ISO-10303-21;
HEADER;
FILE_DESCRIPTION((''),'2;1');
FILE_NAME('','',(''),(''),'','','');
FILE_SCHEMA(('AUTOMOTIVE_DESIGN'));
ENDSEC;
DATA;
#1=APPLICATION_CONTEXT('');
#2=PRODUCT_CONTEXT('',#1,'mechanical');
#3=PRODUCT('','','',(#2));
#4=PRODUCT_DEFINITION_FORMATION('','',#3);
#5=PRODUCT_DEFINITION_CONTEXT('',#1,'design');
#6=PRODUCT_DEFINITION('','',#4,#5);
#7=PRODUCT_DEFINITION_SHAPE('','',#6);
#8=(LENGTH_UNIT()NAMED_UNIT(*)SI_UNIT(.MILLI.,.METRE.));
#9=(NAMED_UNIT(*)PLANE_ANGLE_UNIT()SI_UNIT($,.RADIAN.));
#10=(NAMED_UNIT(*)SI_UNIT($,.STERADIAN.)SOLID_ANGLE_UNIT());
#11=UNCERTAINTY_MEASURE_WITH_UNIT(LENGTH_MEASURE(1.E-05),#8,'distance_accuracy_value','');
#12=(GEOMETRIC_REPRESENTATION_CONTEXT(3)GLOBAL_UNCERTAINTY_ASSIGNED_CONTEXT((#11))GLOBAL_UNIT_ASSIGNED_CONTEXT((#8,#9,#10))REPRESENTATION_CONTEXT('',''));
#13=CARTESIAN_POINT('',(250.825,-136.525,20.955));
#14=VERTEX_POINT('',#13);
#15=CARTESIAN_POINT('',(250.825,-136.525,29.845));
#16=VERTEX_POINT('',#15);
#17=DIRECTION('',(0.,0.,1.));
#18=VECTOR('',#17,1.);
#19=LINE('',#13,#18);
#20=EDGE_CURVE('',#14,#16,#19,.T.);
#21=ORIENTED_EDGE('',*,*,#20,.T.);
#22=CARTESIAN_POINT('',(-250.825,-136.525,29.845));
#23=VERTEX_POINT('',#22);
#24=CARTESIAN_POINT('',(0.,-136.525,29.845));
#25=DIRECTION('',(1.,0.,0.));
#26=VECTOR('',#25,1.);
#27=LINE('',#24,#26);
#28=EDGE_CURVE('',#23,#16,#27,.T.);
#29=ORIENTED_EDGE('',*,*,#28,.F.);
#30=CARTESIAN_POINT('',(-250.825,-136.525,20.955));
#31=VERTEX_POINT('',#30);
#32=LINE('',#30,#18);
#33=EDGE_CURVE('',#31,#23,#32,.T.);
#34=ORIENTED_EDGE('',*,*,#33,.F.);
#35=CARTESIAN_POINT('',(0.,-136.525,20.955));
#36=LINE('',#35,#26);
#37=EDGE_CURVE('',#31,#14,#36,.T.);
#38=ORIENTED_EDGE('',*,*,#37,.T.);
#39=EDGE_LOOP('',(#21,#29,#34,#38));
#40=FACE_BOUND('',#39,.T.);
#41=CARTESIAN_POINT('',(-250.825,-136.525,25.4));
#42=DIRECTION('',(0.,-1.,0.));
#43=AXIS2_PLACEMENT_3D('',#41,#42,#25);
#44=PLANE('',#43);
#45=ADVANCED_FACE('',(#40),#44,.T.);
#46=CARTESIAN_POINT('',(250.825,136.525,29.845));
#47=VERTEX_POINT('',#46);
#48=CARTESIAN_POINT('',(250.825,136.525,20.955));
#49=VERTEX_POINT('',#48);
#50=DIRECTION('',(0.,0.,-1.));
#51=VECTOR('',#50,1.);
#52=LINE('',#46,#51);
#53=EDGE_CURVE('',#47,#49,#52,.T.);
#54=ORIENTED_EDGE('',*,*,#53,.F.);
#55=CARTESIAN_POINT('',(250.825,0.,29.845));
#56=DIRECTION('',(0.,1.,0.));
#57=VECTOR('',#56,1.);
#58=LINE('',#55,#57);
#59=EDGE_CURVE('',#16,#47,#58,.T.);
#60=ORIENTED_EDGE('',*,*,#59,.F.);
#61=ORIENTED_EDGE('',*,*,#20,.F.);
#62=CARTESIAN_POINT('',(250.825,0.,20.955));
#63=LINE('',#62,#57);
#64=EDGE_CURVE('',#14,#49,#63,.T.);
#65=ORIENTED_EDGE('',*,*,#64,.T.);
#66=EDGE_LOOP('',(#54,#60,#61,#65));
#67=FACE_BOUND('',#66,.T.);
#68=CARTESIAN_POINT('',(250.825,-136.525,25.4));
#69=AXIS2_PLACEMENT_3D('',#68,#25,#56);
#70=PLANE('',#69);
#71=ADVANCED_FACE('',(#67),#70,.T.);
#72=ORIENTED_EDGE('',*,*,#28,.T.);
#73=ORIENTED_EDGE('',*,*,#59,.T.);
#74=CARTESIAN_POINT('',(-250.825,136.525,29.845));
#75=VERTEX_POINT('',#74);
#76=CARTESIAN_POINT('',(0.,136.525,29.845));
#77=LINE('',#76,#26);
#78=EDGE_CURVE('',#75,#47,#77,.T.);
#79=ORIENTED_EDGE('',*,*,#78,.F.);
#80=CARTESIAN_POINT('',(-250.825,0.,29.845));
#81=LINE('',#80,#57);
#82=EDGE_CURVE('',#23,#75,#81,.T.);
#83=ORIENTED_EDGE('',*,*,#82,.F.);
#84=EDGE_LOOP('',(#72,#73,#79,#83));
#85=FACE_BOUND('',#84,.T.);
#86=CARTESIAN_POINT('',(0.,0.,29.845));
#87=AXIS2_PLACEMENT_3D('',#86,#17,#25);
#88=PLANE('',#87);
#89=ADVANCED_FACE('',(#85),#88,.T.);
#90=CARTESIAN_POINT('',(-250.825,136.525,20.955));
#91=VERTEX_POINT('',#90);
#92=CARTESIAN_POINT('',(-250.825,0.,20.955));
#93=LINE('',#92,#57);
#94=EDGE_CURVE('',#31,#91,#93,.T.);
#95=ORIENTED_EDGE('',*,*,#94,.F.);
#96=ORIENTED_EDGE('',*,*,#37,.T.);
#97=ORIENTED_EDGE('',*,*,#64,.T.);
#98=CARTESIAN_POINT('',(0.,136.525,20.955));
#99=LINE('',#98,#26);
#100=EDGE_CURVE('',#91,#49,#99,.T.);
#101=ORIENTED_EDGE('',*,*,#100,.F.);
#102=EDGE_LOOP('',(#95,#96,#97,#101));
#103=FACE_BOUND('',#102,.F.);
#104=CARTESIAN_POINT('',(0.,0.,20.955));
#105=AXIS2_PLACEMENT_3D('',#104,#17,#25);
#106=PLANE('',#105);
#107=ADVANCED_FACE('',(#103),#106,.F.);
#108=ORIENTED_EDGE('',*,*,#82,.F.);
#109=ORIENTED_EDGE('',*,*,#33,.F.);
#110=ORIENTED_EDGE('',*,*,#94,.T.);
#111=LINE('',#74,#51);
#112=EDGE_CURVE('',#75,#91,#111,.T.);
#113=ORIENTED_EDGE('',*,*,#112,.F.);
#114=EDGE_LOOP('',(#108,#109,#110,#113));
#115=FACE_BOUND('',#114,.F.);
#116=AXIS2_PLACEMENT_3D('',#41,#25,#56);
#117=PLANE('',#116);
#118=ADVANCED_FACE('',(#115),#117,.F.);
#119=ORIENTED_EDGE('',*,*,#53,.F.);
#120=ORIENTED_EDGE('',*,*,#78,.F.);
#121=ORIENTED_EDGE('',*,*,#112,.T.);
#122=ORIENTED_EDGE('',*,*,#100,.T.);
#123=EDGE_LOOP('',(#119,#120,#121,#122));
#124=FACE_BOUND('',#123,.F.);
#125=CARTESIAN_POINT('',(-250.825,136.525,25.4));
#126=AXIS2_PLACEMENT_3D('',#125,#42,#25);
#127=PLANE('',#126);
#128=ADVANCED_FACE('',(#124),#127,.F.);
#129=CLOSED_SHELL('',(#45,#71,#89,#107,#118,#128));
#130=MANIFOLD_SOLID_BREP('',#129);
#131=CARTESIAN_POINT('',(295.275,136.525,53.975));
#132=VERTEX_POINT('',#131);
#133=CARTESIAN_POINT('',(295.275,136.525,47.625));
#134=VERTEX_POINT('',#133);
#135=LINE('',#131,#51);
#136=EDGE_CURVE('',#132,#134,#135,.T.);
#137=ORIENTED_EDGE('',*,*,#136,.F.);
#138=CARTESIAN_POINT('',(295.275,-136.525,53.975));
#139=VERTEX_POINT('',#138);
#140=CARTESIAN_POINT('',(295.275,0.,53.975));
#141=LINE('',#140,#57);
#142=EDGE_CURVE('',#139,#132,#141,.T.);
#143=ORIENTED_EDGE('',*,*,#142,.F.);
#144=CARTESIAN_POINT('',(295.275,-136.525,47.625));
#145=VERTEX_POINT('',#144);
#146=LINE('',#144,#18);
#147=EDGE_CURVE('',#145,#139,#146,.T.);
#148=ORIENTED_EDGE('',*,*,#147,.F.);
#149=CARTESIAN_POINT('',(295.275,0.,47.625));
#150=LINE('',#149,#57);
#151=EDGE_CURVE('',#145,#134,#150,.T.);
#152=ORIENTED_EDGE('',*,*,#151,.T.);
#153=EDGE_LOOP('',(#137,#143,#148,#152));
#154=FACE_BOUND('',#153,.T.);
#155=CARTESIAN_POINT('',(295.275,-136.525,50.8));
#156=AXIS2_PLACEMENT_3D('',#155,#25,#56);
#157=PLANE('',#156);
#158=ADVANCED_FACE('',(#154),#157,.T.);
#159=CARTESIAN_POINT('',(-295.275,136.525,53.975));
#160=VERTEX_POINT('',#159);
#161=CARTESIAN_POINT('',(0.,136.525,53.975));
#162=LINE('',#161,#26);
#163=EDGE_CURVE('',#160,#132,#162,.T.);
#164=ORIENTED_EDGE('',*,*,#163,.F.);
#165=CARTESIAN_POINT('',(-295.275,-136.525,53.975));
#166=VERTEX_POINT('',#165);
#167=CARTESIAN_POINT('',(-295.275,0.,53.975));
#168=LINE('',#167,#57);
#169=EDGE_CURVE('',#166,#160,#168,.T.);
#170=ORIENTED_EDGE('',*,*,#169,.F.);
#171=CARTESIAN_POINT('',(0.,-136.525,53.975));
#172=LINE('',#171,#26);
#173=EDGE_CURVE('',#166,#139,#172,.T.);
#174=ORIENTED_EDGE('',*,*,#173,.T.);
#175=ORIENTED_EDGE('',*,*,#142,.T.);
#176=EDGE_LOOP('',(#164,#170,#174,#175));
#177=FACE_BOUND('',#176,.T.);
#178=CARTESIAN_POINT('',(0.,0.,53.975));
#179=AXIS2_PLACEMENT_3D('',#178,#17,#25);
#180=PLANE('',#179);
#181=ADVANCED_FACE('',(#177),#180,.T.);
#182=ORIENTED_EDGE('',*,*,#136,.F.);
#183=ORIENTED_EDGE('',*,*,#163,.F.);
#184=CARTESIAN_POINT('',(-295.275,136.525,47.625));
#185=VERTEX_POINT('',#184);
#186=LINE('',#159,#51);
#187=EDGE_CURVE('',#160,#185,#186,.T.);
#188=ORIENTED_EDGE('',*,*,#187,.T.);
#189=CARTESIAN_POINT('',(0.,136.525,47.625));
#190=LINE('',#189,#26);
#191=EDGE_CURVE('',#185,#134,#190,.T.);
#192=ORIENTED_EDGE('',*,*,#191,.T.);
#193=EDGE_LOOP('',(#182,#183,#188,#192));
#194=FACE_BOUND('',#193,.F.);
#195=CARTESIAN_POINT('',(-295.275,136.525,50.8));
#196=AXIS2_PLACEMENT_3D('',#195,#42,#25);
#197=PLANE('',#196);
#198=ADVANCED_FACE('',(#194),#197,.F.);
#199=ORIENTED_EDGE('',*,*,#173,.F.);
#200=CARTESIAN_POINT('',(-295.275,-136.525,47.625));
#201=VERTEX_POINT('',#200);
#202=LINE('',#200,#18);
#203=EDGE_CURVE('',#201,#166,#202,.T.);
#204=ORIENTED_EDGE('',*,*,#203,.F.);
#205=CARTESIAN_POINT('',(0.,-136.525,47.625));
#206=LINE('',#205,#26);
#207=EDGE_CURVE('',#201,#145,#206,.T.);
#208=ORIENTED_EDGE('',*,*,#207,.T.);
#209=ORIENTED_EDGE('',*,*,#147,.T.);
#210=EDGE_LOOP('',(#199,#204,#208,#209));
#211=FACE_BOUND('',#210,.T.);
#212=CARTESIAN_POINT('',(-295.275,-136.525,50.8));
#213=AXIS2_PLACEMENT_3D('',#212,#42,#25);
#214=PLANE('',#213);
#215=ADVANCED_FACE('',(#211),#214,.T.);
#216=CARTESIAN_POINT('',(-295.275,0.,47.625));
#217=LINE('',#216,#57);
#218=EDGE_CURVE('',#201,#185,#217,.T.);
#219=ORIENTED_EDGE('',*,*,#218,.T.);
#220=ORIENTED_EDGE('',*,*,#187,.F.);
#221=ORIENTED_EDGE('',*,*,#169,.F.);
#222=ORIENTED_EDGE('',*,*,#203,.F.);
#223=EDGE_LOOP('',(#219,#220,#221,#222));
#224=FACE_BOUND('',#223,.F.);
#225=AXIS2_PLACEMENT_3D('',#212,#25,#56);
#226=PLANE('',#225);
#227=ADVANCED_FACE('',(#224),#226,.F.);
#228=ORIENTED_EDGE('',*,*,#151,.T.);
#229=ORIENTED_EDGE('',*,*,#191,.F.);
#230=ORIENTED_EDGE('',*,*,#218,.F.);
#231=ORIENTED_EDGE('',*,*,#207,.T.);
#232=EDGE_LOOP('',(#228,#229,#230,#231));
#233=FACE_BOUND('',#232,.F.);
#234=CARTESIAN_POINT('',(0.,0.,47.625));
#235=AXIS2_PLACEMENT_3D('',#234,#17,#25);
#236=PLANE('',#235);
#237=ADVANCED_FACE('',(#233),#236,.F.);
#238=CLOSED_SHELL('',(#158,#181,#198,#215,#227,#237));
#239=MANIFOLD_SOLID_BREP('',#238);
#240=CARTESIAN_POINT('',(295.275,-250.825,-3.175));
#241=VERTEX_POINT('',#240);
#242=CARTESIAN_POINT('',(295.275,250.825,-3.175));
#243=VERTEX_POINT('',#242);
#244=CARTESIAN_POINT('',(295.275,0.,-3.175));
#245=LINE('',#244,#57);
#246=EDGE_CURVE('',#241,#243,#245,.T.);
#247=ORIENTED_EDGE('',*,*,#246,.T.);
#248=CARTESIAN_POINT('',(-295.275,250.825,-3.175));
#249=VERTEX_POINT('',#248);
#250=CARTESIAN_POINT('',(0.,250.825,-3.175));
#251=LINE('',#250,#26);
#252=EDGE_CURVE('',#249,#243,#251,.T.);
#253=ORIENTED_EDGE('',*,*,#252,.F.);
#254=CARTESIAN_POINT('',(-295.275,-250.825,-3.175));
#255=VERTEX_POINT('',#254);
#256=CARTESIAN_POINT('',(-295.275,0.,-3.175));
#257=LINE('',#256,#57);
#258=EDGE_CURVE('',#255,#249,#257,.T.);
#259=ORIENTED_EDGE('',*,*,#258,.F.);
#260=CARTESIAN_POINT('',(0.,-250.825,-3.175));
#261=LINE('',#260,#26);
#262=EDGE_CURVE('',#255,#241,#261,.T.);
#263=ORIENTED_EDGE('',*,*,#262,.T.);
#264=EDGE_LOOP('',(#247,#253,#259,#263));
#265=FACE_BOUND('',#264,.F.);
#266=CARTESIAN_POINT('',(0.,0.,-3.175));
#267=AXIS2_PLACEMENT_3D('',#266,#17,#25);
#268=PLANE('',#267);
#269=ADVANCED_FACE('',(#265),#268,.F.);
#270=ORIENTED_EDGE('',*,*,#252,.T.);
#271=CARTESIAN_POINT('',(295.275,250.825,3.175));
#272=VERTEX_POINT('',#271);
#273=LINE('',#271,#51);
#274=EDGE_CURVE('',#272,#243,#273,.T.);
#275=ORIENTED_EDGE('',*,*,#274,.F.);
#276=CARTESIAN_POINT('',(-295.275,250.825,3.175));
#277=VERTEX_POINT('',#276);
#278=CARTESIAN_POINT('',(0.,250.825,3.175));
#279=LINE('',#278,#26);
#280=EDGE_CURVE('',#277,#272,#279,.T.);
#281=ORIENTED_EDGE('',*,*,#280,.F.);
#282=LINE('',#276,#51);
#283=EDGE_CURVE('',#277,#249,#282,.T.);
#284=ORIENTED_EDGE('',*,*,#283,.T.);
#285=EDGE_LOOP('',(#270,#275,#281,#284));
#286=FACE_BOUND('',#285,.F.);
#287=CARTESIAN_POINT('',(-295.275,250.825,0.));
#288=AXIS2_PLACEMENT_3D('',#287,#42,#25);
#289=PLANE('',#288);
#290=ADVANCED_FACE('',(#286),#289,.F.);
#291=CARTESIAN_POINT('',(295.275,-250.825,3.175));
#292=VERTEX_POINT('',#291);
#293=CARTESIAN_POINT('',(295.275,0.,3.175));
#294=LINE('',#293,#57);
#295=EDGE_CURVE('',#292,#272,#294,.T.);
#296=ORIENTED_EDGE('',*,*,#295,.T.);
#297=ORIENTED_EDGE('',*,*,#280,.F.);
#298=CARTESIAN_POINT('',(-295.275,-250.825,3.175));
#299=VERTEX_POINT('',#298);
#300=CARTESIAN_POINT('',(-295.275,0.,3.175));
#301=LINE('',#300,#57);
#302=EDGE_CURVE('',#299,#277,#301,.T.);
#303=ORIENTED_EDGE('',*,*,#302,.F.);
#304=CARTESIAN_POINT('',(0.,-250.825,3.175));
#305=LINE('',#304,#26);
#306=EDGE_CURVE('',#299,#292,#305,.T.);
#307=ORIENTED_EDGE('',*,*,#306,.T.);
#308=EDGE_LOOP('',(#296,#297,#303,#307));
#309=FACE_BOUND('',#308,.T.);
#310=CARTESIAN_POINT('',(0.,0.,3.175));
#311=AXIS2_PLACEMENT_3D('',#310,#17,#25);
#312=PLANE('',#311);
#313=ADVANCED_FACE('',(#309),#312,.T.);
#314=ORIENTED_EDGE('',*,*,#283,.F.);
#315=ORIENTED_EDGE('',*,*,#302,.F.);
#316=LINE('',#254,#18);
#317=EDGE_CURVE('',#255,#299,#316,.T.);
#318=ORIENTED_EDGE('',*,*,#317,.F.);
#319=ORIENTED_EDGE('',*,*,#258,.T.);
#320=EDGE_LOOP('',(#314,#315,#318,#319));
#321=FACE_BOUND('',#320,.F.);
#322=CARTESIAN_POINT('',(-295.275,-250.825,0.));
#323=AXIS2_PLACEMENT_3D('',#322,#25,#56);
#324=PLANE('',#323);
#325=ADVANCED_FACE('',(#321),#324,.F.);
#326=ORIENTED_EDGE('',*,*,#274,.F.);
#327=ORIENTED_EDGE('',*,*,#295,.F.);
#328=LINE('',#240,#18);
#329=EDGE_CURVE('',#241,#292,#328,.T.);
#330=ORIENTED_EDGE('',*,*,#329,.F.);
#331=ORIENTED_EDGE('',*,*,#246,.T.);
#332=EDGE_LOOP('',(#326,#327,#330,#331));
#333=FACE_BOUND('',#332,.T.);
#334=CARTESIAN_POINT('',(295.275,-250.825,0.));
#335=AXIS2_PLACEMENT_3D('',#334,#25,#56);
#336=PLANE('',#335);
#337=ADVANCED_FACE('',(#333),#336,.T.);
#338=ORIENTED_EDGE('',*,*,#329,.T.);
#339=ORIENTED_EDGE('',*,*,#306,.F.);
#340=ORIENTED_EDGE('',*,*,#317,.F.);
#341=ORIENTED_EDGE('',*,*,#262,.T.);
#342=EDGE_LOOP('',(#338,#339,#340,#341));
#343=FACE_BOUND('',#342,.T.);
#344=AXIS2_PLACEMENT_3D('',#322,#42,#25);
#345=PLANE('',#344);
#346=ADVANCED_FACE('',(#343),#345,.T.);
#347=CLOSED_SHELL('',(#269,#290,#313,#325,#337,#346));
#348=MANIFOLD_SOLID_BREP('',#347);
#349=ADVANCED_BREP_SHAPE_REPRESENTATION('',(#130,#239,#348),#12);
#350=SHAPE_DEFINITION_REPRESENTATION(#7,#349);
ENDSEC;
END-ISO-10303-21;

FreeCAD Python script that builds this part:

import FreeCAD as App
import Part
import Sketcher

V = App.Vector
Q = App.Units.Quantity


def add_polygon(sketch, points):
    """Adds a closed chain of lines whose ends are joined by coincident constraints."""
    first, n = sketch.GeometryCount, len(points)
    for a, b in zip(points, points[1:] + points[:1]):
        sketch.addGeometry(Part.LineSegment(App.Vector(*a, 0), App.Vector(*b, 0)), False)
    for i in range(n):
        sketch.addConstraint(Sketcher.Constraint("Coincident", first + i, 2, first + (i + 1) % n, 1))

doc = App.newDocument("Part")
body = doc.addObject("PartDesign::Body", "Body")

# Sketch on XY plane
sketch1 = body.newObject("Sketcher::SketchObject", "Sketch")
sketch1.AttachmentSupport = (doc.getObject("XY_Plane"), [""])
sketch1.MapMode = "FlatFace"
add_polygon(sketch1, [(-295, 251), (-295, -251), (295, -251), (295, 251)])  # lines 0-3
sketch1.addConstraint([
    Sketcher.Constraint("Vertical", 0),
    Sketcher.Constraint("Horizontal", 1),
    Sketcher.Constraint("Vertical", 2),
    Sketcher.Constraint("Horizontal", 3),
    Sketcher.Constraint("Symmetric", 0, 2, 2, 2, -1, 1),
    Sketcher.Constraint("DistanceX", 1, 1, 1, 2, Q("23.25 in")),
    Sketcher.Constraint("DistanceY", 0, 2, 0, 1, Q("19.75 in")),
])
pad1 = body.newObject("PartDesign::Pad", "Pad")
pad1.Profile = sketch1
pad1.Length = Q("0.25 in")
pad1.Midplane = True
body2 = doc.addObject("PartDesign::Body", "Body001")

# Sketch on XY plane
sketch2 = body2.newObject("Sketcher::SketchObject", "Sketch001")
sketch2.AttachmentSupport = (doc.getObject("XY_Plane001"), [""])
sketch2.MapMode = "FlatFace"
sketch2.AttachmentOffset = App.Placement(V(0, 0, 1 * 25.4), App.Rotation())
add_polygon(sketch2, [(-251, 137), (-251, -137), (251, -137), (251, 137)])  # lines 0-3
sketch2.addConstraint([
    Sketcher.Constraint("Vertical", 0),
    Sketcher.Constraint("Horizontal", 1),
    Sketcher.Constraint("Vertical", 2),
    Sketcher.Constraint("Horizontal", 3),
    Sketcher.Constraint("Symmetric", 0, 2, 2, 2, -1, 1),
    Sketcher.Constraint("DistanceX", 1, 1, 1, 2, Q("19.75 in")),
    Sketcher.Constraint("DistanceY", 0, 2, 0, 1, Q("10.75 in")),
])
pad2 = body2.newObject("PartDesign::Pad", "Pad001")
pad2.Profile = sketch2
pad2.Length = Q("0.35 in")
pad2.Midplane = True
body3 = doc.addObject("PartDesign::Body", "Body002")

# Sketch on XY plane
sketch3 = body3.newObject("Sketcher::SketchObject", "Sketch002")
sketch3.AttachmentSupport = (doc.getObject("XY_Plane002"), [""])
sketch3.MapMode = "FlatFace"
sketch3.AttachmentOffset = App.Placement(V(0, 0, 2 * 25.4), App.Rotation())
add_polygon(sketch3, [(-295, 137), (-295, -137), (295, -137), (295, 137)])  # lines 0-3
sketch3.addConstraint([
    Sketcher.Constraint("Vertical", 0),
    Sketcher.Constraint("Horizontal", 1),
    Sketcher.Constraint("Vertical", 2),
    Sketcher.Constraint("Horizontal", 3),
    Sketcher.Constraint("Symmetric", 0, 2, 2, 2, -1, 1),
    Sketcher.Constraint("DistanceX", 1, 1, 1, 2, Q("23.25 in")),
    Sketcher.Constraint("DistanceY", 0, 2, 0, 1, Q("10.75 in")),
])
pad3 = body3.newObject("PartDesign::Pad", "Pad002")
pad3.Profile = sketch3
pad3.Length = Q("0.25 in")
pad3.Midplane = True

doc.recompute()
